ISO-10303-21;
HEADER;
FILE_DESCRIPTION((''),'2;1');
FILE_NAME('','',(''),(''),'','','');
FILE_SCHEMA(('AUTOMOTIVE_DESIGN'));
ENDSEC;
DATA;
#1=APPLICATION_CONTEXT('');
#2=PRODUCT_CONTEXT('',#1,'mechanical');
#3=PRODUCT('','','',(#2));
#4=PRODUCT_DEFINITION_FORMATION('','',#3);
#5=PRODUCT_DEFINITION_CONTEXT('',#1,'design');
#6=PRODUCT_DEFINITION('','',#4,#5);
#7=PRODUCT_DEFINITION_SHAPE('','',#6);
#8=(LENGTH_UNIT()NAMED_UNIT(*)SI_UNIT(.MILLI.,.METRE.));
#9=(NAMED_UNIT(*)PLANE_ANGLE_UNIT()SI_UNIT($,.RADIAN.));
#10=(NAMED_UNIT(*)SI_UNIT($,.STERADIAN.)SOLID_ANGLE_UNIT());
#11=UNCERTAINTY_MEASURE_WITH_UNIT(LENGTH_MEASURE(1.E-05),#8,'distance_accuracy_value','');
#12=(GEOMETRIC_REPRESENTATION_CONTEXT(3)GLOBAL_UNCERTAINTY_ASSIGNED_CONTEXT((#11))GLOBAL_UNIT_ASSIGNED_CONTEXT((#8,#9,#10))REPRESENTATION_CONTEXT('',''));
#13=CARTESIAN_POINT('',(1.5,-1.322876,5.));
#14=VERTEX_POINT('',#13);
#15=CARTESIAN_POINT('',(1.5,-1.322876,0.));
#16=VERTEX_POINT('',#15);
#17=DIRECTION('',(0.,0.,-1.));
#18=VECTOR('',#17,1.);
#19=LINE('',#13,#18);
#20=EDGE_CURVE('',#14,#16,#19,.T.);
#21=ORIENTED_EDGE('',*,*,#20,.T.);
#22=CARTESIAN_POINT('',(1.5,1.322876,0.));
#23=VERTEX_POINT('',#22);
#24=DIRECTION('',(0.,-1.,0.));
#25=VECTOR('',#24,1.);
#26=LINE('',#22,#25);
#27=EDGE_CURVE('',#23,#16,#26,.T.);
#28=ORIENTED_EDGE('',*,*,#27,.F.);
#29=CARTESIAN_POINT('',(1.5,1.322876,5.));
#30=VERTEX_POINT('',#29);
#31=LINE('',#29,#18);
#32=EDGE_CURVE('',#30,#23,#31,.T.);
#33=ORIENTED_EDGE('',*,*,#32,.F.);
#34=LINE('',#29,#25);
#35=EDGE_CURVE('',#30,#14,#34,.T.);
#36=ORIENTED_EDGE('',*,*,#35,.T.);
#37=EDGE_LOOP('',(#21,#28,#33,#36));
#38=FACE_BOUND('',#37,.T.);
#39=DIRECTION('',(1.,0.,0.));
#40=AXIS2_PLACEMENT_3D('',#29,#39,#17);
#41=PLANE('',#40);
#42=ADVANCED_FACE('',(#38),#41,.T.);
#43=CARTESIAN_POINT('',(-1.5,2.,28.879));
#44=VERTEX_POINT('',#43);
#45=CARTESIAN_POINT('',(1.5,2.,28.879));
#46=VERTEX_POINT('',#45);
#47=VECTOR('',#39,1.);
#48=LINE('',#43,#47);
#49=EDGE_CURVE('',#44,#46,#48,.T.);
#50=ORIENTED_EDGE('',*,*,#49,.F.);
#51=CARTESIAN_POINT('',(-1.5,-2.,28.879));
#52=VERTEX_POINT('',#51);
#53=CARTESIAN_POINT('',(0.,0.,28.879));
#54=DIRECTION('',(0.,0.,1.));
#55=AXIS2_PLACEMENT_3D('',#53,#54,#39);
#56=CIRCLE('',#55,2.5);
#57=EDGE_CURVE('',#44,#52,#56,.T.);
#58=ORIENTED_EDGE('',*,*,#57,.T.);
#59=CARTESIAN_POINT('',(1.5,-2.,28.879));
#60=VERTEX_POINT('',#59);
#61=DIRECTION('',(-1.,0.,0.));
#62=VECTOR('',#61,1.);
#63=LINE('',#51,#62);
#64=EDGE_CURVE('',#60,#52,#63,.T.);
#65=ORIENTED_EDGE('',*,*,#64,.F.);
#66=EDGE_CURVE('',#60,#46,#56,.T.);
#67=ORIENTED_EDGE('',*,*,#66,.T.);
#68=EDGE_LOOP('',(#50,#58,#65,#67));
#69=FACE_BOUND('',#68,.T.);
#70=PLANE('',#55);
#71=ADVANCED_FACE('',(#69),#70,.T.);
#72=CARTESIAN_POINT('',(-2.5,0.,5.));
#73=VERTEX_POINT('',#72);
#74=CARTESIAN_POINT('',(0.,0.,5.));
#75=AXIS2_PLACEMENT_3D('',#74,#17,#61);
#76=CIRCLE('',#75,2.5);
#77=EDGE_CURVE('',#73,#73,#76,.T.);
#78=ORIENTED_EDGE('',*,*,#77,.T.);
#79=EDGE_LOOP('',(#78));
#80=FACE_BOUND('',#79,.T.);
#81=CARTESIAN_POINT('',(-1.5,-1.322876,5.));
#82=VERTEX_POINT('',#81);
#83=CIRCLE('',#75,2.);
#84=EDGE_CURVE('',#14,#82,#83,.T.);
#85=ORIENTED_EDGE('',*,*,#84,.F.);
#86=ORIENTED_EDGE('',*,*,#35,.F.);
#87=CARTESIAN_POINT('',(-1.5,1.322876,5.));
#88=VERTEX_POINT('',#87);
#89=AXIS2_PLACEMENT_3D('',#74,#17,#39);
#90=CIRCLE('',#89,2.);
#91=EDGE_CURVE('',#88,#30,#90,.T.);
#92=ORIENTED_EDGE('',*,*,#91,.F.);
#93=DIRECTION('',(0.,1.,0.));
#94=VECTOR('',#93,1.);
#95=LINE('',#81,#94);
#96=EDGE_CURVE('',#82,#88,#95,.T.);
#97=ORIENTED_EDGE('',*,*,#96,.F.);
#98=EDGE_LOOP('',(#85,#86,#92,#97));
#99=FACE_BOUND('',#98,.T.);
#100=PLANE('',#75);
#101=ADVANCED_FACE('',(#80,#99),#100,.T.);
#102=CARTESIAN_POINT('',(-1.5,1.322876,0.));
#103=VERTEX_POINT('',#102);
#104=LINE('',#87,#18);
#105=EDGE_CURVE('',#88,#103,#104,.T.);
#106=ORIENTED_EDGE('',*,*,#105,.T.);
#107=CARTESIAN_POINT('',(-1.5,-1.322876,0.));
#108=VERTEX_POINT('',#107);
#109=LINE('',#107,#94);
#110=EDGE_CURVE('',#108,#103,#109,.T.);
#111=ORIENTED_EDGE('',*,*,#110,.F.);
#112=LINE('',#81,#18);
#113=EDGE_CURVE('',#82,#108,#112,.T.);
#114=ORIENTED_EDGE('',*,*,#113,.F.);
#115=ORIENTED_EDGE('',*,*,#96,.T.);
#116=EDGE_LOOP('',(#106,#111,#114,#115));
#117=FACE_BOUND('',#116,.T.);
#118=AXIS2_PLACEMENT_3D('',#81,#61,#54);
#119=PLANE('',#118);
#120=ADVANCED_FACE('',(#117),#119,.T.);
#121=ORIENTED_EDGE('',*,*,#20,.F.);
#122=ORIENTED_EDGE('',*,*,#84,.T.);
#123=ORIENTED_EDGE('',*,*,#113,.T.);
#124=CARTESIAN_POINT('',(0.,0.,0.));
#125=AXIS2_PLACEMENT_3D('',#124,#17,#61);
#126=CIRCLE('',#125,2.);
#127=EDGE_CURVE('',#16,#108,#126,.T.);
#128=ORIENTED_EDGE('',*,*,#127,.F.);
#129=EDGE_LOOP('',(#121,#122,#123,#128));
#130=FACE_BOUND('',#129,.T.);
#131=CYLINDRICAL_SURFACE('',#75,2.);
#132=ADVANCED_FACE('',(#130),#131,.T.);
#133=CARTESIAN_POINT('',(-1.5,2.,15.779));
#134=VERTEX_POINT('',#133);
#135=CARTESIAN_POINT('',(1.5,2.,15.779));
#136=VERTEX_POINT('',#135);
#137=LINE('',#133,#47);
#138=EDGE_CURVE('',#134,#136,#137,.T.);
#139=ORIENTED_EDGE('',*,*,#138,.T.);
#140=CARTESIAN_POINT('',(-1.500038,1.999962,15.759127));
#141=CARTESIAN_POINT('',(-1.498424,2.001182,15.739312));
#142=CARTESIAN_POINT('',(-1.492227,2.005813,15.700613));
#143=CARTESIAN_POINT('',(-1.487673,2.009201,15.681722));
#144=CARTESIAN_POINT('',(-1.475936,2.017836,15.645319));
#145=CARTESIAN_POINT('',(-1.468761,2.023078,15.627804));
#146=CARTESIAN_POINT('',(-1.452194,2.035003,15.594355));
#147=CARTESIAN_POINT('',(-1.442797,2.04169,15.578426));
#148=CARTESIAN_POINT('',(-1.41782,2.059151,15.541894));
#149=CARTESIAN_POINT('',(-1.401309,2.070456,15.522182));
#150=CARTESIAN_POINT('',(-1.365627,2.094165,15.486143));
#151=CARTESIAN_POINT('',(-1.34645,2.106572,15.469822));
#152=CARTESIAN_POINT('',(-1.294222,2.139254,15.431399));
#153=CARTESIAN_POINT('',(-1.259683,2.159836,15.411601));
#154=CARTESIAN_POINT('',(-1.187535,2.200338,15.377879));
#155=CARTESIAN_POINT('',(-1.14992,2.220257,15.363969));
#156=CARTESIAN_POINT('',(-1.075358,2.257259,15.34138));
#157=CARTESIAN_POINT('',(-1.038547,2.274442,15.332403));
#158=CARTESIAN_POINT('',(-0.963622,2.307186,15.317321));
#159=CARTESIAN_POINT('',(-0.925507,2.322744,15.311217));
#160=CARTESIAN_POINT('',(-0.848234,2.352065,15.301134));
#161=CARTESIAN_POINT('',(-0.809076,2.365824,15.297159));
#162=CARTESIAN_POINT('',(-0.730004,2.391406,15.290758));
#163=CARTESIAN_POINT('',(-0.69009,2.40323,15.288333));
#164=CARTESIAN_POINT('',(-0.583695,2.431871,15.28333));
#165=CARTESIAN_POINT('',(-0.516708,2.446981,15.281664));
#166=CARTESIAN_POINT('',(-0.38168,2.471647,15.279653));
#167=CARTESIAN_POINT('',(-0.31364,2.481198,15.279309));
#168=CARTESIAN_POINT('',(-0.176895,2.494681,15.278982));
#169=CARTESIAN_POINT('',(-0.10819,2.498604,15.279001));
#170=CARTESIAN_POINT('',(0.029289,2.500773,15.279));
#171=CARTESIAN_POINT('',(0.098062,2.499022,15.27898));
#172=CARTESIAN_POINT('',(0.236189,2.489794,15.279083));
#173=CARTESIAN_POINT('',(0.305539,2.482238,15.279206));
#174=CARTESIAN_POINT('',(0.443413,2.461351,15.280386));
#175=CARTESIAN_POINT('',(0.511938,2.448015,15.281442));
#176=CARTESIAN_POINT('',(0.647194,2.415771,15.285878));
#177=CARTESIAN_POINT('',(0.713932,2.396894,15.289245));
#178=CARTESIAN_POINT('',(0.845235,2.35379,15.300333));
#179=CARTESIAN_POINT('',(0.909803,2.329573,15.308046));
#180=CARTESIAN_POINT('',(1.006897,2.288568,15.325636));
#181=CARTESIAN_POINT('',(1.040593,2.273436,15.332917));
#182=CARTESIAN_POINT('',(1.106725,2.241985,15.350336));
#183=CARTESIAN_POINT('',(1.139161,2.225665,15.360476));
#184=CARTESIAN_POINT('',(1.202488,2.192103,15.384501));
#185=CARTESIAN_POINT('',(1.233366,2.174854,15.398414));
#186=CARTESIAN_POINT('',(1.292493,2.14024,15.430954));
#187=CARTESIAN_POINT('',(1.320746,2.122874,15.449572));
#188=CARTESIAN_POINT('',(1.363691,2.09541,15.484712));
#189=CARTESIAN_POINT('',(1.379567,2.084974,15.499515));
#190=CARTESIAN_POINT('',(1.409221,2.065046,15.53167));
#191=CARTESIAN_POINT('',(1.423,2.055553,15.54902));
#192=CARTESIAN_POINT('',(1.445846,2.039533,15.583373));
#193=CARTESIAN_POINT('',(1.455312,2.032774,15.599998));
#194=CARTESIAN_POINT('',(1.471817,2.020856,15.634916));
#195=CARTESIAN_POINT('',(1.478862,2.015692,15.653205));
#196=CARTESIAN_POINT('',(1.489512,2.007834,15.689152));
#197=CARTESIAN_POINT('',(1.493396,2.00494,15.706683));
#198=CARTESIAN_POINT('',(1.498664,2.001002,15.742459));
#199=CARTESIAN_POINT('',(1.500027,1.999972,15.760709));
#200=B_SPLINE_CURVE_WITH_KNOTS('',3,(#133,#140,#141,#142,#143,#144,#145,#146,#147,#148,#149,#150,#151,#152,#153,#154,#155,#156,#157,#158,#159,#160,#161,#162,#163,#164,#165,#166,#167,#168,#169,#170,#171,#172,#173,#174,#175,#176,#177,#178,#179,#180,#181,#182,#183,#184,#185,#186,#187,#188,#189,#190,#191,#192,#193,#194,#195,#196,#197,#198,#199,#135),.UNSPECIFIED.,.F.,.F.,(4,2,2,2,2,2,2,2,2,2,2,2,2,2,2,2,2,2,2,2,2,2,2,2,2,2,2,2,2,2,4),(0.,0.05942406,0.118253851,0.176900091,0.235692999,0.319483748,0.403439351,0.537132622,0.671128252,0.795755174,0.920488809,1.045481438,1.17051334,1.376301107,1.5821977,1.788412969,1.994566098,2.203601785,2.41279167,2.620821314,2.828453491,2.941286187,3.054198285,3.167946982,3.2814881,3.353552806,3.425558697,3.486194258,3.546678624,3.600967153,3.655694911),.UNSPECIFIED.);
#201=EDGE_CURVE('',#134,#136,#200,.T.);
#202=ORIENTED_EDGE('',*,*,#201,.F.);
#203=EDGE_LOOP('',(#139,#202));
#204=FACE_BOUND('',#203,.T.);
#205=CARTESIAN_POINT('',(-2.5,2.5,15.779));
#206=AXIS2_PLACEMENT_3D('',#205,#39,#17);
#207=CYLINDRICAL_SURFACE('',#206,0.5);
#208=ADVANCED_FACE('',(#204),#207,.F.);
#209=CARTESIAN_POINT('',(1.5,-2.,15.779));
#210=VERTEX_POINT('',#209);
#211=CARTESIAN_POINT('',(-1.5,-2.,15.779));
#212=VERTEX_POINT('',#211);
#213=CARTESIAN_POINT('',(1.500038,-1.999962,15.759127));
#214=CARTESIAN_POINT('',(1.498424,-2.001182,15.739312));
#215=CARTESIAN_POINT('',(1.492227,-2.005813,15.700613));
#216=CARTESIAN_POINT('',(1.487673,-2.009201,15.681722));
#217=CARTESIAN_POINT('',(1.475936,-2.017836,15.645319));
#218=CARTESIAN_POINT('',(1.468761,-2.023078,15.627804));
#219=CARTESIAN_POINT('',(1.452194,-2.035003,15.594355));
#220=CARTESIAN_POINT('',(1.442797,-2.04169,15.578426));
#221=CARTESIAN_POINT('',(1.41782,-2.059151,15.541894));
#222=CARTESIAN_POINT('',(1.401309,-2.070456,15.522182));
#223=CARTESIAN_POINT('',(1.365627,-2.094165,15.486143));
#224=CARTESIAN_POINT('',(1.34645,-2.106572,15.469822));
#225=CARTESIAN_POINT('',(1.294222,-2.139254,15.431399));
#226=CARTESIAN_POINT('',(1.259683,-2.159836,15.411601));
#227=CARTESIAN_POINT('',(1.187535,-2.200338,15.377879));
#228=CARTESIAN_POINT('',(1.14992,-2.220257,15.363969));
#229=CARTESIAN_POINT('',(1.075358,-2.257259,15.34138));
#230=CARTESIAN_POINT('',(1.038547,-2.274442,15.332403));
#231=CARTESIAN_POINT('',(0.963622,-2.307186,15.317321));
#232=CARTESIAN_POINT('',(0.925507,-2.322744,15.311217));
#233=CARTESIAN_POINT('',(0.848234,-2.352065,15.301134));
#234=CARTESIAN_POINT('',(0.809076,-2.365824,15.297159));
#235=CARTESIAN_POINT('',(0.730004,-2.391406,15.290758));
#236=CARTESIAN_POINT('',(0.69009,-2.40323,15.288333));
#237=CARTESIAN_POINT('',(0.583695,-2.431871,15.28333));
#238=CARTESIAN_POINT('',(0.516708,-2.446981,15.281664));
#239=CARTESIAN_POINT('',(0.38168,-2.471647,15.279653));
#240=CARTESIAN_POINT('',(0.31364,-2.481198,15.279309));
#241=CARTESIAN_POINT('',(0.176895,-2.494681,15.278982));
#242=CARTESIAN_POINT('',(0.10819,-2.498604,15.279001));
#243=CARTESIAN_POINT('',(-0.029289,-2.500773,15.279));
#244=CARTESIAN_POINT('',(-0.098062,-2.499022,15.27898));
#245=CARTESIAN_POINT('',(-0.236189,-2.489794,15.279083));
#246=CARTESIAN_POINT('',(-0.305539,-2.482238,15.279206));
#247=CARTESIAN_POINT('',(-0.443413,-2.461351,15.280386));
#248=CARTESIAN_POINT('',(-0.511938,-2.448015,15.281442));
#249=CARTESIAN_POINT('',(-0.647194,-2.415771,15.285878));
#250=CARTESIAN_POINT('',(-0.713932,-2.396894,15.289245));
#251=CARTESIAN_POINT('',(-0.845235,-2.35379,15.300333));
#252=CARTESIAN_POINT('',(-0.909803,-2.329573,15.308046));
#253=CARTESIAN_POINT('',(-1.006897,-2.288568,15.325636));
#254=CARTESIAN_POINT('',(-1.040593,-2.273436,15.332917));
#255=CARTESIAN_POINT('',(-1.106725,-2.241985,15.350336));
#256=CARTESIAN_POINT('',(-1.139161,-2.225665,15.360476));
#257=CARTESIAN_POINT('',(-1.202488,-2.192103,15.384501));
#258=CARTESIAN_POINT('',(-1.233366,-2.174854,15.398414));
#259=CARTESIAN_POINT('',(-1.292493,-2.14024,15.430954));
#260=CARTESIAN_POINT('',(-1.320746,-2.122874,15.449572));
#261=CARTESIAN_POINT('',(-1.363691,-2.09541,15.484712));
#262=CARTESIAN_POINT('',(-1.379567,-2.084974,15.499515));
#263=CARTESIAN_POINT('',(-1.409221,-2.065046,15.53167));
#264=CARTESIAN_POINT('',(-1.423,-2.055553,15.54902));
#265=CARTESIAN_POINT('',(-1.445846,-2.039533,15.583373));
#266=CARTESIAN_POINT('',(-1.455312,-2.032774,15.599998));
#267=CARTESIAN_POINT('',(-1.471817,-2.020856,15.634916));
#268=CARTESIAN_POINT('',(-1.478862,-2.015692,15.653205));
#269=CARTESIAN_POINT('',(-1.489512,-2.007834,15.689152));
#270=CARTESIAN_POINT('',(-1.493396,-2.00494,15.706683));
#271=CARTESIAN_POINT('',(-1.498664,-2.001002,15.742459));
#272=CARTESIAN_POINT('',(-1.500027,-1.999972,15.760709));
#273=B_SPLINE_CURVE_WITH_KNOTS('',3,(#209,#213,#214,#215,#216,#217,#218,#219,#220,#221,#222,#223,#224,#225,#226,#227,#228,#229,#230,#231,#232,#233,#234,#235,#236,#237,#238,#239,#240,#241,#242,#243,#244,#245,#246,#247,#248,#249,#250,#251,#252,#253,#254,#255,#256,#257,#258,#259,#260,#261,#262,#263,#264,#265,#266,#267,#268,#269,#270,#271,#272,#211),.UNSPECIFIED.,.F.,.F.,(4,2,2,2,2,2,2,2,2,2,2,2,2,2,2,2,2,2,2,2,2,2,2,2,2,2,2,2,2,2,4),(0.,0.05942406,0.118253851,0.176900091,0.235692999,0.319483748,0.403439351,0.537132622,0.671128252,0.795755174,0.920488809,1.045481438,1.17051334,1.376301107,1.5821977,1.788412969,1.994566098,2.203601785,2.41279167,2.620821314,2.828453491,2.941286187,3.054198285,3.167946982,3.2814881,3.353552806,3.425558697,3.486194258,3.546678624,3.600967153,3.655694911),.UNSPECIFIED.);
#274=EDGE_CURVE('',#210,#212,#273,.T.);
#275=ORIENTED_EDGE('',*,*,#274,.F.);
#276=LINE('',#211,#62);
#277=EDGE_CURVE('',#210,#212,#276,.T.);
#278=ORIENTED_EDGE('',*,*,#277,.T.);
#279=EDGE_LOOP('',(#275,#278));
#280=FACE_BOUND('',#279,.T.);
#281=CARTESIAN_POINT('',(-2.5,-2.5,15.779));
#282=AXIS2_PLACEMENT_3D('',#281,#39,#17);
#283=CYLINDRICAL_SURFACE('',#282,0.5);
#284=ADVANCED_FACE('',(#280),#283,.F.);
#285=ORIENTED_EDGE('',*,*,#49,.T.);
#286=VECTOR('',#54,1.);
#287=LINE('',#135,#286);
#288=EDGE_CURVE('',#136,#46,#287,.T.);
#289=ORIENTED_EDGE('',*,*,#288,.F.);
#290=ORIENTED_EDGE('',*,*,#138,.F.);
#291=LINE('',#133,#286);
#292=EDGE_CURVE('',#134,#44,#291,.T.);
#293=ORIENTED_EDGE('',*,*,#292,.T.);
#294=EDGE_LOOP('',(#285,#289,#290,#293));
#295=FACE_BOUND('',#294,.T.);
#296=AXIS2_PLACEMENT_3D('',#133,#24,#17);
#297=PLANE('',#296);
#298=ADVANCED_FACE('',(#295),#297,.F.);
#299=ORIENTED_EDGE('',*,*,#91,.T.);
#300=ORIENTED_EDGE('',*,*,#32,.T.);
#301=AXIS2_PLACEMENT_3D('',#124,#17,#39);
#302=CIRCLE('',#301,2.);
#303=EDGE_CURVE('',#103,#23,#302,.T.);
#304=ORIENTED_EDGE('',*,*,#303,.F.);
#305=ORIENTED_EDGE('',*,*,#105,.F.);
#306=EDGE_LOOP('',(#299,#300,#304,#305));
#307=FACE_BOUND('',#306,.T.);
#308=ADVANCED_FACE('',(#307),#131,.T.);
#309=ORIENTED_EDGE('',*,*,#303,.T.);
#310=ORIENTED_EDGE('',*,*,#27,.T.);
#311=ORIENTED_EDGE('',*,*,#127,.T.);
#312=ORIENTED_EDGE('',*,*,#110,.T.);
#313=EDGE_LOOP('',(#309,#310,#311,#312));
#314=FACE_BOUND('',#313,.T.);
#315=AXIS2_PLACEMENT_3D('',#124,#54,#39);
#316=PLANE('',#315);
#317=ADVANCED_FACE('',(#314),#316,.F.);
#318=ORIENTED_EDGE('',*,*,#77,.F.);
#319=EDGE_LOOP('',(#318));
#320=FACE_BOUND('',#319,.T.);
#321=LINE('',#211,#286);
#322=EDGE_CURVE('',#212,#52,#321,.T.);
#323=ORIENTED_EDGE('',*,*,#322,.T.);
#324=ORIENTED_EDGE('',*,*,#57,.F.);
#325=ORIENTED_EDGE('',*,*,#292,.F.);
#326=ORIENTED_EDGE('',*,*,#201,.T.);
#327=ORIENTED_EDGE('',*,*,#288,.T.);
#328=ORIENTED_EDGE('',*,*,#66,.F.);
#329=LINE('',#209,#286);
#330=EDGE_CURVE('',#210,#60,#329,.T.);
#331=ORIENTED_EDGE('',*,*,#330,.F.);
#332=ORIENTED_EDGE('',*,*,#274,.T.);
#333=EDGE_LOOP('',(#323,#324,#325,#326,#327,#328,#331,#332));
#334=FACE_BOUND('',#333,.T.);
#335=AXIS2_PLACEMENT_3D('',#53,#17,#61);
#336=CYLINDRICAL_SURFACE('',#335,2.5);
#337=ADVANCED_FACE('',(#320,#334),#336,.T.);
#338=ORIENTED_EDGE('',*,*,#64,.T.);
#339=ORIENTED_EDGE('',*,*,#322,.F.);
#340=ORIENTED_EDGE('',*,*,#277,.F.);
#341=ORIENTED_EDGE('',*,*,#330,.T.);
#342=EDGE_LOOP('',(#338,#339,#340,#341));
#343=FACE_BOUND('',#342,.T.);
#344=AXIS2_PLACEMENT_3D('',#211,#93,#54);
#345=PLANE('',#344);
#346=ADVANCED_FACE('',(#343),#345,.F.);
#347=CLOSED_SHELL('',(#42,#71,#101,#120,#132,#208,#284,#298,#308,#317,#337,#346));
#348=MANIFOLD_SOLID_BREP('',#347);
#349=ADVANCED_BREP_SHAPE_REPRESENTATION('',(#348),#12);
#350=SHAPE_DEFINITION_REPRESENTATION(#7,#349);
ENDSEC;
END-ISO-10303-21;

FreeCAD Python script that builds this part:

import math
import FreeCAD as App
import Part
import Sketcher

V = App.Vector
Q = App.Units.Quantity

doc = App.newDocument("Part")
body = doc.addObject("PartDesign::Body", "Body")

sketch1 = body.newObject("Sketcher::SketchObject", "Sketch")
sketch1.AttachmentSupport = (doc.getObject("XY_Plane"), [""])
sketch1.MapMode = "FlatFace"
sketch1.addGeometry(Part.Circle(V(0, 0, 0), V(0, 0, 1), 2.5), False)
sketch1.addConstraint([
    Sketcher.Constraint("Coincident", 0, 3, -1, 1),
    Sketcher.Constraint("Diameter", 0, Q("5 mm")),
])
pad1 = body.newObject("PartDesign::Pad", "Pad")
pad1.Profile = sketch1
pad1.Length = 28.879

sketch2 = body.newObject("Sketcher::SketchObject", "Sketch001")
sketch2.AttachmentSupport = (doc.getObject("XY_Plane"), [""])
sketch2.MapMode = "FlatFace"
sketch2.addGeometry([
    Part.Circle(V(0, 0, 0), V(0, 0, 1), 2.5),
    Part.LineSegment(V(1.5, -1.322876, 0), V(1.5, 1.322876, 0)),
    Part.ArcOfCircle(Part.Circle(V(0, 0, 0), V(0, 0, 1), 2), math.radians(41.409622), math.radians(138.590378)),
    Part.LineSegment(V(-1.5, 1.322876, 0), V(-1.5, -1.322876, 0)),
    Part.ArcOfCircle(Part.Circle(V(0, 0, 0), V(0, 0, 1), 2), math.radians(-138.590378), math.radians(-41.409622)),
], False)
sketch2.addConstraint([
    Sketcher.Constraint("Coincident", 1, 2, 2, 1),
    Sketcher.Constraint("Coincident", 2, 2, 3, 1),
    Sketcher.Constraint("Coincident", 3, 2, 4, 1),
    Sketcher.Constraint("Coincident", 4, 2, 1, 1),
    Sketcher.Constraint("Vertical", 1),
    Sketcher.Constraint("Vertical", 3),
    Sketcher.Constraint("Coincident", 0, 3, -1, 1),
    Sketcher.Constraint("Coincident", 2, 3, -1, 1),
    Sketcher.Constraint("Coincident", 4, 3, -1, 1),
    Sketcher.Constraint("Equal", 2, 4),
    Sketcher.Constraint("Horizontal", 1, 2, 2, 2),
    Sketcher.Constraint("Diameter", 0, Q("5 mm")),
    Sketcher.Constraint("Radius", 2, Q("2 mm")),
    Sketcher.Constraint("DistanceX", 2, 2, 1, 2, Q("3 mm")),
])
pocket1 = body.newObject("PartDesign::Pocket", "Pocket")
pocket1.Profile = sketch2
pocket1.Length = 5
pocket1.Reversed = True

sketch3 = body.newObject("Sketcher::SketchObject", "Sketch002")
sketch3.AttachmentSupport = (doc.getObject("XY_Plane"), [""])
sketch3.MapMode = "FlatFace"
sketch3.AttachmentOffset = App.Placement(V(0, 0, 28.879), App.Rotation())
sketch3.addGeometry([
    Part.LineSegment(V(-1.5, 2, 0), V(1.5, 2, 0)),
    Part.ArcOfCircle(Part.Circle(V(0, 0, 0), V(0, 0, 1), 2.5), math.radians(53.130102), math.radians(126.869898)),
    Part.LineSegment(V(1.5, -2, 0), V(-1.5, -2, 0)),
    Part.ArcOfCircle(Part.Circle(V(0, 0, 0), V(0, 0, 1), 2.5), math.radians(-126.869898), math.radians(-53.130102)),
], False)
sketch3.addConstraint([
    Sketcher.Constraint("Coincident", 0, 1, 1, 2),
    Sketcher.Constraint("Coincident", 1, 1, 0, 2),
    Sketcher.Constraint("Coincident", 2, 1, 3, 2),
    Sketcher.Constraint("Coincident", 3, 1, 2, 2),
    Sketcher.Constraint("Horizontal", 0),
    Sketcher.Constraint("Horizontal", 2),
    Sketcher.Constraint("Coincident", 1, 3, -1, 1),
    Sketcher.Constraint("Coincident", 3, 3, -1, 1),
    Sketcher.Constraint("Equal", 1, 3),
    Sketcher.Constraint("Vertical", 1, 1, 2, 1),
    Sketcher.Constraint("Radius", 1, Q("2.5 mm")),
    Sketcher.Constraint("DistanceX", 0, 1, 0, 2, Q("3 mm")),
])
pocket2 = body.newObject("PartDesign::Pocket", "Pocket001")
pocket2.Profile = sketch3
pocket2.Length = 13.1

sketch4 = body.newObject("Sketcher::SketchObject", "Sketch003")
sketch4.AttachmentSupport = (doc.getObject("YZ_Plane"), [""])
sketch4.MapMode = "FlatFace"
sketch4.addGeometry([
    Part.LineSegment(V(2.5, 15.779, 0), V(2, 15.779, 0)),
    Part.ArcOfCircle(Part.Circle(V(2.5, 15.779, 0), V(0, 0, 1), 0.5), math.radians(180), math.radians(270)),
    Part.LineSegment(V(2.5, 15.279, 0), V(2.5, 15.779, 0)),
    Part.LineSegment(V(-2, 15.779, 0), V(-2.5, 15.779, 0)),
    Part.LineSegment(V(-2.5, 15.779, 0), V(-2.5, 15.279, 0)),
    Part.ArcOfCircle(Part.Circle(V(-2.5, 15.779, 0), V(0, 0, 1), 0.5), math.radians(-90), math.radians(0)),
], False)
sketch4.addConstraint([
    Sketcher.Constraint("Coincident", 0, 2, 1, 1),
    Sketcher.Constraint("Coincident", 1, 2, 2, 1),
    Sketcher.Constraint("Coincident", 2, 2, 0, 1),
    Sketcher.Constraint("Coincident", 3, 2, 4, 1),
    Sketcher.Constraint("Coincident", 4, 2, 5, 1),
    Sketcher.Constraint("Coincident", 5, 2, 3, 1),
    Sketcher.Constraint("Horizontal", 0),
    Sketcher.Constraint("Vertical", 2),
    Sketcher.Constraint("Horizontal", 3),
    Sketcher.Constraint("Vertical", 4),
    Sketcher.Constraint("Coincident", 2, 2, 1, 3),
    Sketcher.Constraint("Coincident", 3, 2, 5, 3),
    Sketcher.Constraint("Equal", 1, 5),
    Sketcher.Constraint("Symmetric", 1, 3, 5, 3, -2),
    Sketcher.Constraint("Radius", 1, Q("0.5 mm")),
    Sketcher.Constraint("DistanceX", -1, 1, 0, 2, Q("2 mm")),
    Sketcher.Constraint("DistanceY", -1, 1, 1, 3, Q("15.779 mm")),
])
pocket3 = body.newObject("PartDesign::Pocket", "Pocket002")
pocket3.Profile = sketch4
pocket3.Type = "ThroughAll"
pocket3.Midplane = True

doc.recompute()
